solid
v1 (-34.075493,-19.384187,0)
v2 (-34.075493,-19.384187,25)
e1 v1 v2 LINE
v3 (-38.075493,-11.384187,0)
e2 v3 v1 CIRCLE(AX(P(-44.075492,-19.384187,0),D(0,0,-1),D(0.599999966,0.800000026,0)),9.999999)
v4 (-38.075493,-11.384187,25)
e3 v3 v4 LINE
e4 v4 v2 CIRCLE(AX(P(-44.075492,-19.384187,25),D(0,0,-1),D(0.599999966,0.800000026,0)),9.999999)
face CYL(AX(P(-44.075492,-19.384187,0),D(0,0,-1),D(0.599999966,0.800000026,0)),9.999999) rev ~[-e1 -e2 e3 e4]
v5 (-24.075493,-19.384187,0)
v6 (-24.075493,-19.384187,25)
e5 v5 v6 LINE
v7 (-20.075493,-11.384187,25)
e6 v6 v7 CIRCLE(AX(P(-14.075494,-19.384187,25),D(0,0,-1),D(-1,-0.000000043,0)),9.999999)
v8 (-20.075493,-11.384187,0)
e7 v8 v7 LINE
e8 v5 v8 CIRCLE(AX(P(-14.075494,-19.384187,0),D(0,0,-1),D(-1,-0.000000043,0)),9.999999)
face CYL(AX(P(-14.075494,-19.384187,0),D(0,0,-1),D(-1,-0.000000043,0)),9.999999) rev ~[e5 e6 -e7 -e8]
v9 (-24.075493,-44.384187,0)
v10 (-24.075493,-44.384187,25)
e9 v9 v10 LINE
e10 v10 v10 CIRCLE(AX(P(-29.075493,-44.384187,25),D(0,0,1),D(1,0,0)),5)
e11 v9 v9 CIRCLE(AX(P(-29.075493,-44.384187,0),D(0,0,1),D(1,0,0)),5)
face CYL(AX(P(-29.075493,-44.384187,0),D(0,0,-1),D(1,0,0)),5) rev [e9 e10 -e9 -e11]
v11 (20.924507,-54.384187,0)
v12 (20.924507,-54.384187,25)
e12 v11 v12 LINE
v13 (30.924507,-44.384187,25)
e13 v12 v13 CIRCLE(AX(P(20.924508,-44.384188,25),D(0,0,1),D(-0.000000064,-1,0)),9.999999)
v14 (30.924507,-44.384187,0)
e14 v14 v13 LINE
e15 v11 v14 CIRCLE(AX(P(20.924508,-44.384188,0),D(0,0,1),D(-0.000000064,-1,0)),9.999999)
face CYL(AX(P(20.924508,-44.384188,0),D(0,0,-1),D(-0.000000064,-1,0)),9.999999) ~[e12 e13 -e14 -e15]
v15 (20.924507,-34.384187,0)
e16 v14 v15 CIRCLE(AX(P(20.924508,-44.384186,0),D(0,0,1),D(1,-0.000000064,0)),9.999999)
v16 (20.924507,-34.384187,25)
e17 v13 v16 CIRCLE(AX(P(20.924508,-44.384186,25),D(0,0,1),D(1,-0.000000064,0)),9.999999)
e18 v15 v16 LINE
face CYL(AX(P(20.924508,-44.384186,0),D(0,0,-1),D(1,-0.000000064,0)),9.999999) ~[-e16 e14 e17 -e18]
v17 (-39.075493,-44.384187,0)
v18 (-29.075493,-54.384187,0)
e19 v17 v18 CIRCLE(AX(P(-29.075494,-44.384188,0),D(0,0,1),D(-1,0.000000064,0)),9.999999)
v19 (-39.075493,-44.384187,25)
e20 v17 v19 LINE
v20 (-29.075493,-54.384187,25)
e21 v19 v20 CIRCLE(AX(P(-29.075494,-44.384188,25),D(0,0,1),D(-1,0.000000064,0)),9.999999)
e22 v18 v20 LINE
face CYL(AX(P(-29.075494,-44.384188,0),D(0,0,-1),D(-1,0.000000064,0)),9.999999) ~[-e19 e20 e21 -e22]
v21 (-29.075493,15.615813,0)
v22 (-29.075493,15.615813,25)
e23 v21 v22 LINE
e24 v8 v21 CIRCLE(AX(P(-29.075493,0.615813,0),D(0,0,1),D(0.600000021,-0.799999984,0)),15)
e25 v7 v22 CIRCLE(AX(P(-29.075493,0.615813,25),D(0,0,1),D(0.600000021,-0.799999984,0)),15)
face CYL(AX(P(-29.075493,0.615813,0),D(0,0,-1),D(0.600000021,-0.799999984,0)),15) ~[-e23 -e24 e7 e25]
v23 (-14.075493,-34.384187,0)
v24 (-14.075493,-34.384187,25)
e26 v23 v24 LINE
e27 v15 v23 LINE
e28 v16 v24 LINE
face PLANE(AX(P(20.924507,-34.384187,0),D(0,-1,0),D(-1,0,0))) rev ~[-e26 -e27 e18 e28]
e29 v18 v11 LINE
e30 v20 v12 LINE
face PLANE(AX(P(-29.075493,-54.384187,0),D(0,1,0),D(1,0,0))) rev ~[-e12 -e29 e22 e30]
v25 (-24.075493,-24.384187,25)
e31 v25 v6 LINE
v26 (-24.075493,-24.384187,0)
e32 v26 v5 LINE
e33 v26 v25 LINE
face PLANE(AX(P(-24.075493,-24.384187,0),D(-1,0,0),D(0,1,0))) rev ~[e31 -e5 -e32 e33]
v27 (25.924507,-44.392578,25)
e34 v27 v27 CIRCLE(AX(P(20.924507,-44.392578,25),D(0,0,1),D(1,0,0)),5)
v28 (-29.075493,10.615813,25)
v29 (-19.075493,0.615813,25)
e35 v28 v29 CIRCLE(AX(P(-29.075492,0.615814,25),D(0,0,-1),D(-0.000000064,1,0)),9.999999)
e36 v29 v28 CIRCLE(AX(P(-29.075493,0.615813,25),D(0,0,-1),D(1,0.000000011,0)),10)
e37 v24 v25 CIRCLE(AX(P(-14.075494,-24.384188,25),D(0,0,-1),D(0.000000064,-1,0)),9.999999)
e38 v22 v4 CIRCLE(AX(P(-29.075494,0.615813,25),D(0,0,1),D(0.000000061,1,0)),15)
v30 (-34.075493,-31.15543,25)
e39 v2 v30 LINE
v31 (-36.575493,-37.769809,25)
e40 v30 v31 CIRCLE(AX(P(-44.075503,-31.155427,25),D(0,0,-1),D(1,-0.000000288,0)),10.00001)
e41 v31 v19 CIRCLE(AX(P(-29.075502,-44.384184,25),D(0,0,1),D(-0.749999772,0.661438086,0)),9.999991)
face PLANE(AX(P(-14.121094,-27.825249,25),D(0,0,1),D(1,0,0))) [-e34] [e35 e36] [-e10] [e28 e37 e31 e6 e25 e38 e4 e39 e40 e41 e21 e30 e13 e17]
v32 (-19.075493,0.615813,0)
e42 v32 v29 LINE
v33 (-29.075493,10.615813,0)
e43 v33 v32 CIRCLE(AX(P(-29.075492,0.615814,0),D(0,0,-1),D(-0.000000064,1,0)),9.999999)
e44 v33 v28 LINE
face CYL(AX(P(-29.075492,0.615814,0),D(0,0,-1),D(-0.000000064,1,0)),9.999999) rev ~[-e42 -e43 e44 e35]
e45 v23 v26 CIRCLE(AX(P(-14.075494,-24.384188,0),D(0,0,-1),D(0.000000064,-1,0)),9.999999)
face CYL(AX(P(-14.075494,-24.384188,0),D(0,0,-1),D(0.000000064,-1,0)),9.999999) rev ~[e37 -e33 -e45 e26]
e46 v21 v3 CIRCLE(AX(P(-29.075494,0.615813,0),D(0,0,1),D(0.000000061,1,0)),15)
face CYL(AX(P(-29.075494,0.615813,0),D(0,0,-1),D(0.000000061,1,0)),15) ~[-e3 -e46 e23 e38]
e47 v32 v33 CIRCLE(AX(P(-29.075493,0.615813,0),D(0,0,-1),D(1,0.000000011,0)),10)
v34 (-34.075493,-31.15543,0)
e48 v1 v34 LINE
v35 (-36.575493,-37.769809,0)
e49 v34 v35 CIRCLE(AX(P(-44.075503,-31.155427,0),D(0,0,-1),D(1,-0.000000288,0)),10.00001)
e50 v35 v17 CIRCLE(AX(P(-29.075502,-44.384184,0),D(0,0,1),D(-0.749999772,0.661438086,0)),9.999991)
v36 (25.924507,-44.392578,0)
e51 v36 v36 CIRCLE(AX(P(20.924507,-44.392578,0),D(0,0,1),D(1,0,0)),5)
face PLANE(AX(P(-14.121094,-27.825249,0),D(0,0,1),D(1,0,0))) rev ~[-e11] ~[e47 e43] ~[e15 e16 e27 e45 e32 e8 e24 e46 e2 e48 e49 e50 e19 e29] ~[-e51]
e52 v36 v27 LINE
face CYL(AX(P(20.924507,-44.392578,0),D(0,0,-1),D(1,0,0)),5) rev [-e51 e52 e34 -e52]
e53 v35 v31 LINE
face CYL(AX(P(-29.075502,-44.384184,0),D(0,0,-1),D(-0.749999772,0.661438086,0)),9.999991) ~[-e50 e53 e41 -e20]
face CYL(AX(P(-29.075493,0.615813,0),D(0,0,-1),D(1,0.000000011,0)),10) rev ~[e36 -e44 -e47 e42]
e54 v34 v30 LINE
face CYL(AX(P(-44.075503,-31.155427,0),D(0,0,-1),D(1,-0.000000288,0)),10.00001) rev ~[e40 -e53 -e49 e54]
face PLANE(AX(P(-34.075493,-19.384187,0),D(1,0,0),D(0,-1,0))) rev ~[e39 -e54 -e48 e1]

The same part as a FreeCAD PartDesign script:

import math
import FreeCAD as App
import Part
import Sketcher
from FreeCAD import Vector
Q = App.Units.Quantity

doc = App.newDocument("Part")
body = doc.addObject("PartDesign::Body", "Body")

# Sketch on XY plane
sketch1 = body.newObject("Sketcher::SketchObject", "Sketch")
sketch1.AttachmentSupport = (doc.getObject("XY_Plane"), [""])
sketch1.MapMode = "FlatFace"
sketch1.addGeometry(Part.ArcOfCircle(Part.Circle(Vector(-29, -44, 0), Vector(0, 0, 1), 10), math.radians(180), math.radians(270)), False)
sketch1.addGeometry(Part.LineSegment(Vector(-29, -54, 0), Vector(21, -54, 0)), False)
sketch1.addGeometry(Part.ArcOfCircle(Part.Circle(Vector(21, -44, 0), Vector(0, 0, 1), 10), math.radians(-90), math.radians(0)), False)
sketch1.addGeometry(Part.ArcOfCircle(Part.Circle(Vector(21, -44, 0), Vector(0, 0, 1), 10), math.radians(0), math.radians(90)), False)
sketch1.addGeometry(Part.LineSegment(Vector(21, -34, 0), Vector(-14, -34, 0)), False)
sketch1.addGeometry(Part.ArcOfCircle(Part.Circle(Vector(-14, -24, 0), Vector(0, 0, 1), 10), math.radians(180), math.radians(270)), False)
sketch1.addGeometry(Part.LineSegment(Vector(-24, -24, 0), Vector(-24, -19, 0)), False)
sketch1.addGeometry(Part.ArcOfCircle(Part.Circle(Vector(-14, -19, 0), Vector(0, 0, 1), 10), math.radians(127), math.radians(180)), False)
sketch1.addGeometry(Part.ArcOfCircle(Part.Circle(Vector(-29, 1, 0), Vector(0, 0, 1), 15), math.radians(-53), math.radians(90)), False)
sketch1.addGeometry(Part.ArcOfCircle(Part.Circle(Vector(-29, 1, 0), Vector(0, 0, 1), 15), math.radians(90), math.radians(233)), False)
sketch1.addGeometry(Part.ArcOfCircle(Part.Circle(Vector(-44, -19, 0), Vector(0, 0, 1), 10), math.radians(0), math.radians(53)), False)
sketch1.addGeometry(Part.LineSegment(Vector(-34, -19, 0), Vector(-34, -31, 0)), False)
sketch1.addGeometry(Part.ArcOfCircle(Part.Circle(Vector(-44, -31, 0), Vector(0, 0, 1), 10), math.radians(-41), math.radians(0)), False)
sketch1.addGeometry(Part.ArcOfCircle(Part.Circle(Vector(-29, -44, 0), Vector(0, 0, 1), 10), math.radians(139), math.radians(180)), False)
sketch1.addGeometry(Part.Circle(Vector(-29, -44, 0), Vector(0, 0, 1), 5), False)
sketch1.addGeometry(Part.Circle(Vector(21, -44, 0), Vector(0, 0, 1), 5), False)
sketch1.addGeometry(Part.ArcOfCircle(Part.Circle(Vector(-29, 1, 0), Vector(0, 0, 1), 10), math.radians(0), math.radians(90)), False)
sketch1.addGeometry(Part.ArcOfCircle(Part.Circle(Vector(-29, 1, 0), Vector(0, 0, 1), 10), math.radians(90), math.radians(360)), False)
sketch1.addConstraint(Sketcher.Constraint("Tangent", 0, 2, 1, 1))
sketch1.addConstraint(Sketcher.Constraint("Tangent", 1, 2, 2, 1))
sketch1.addConstraint(Sketcher.Constraint("Tangent", 2, 2, 3, 1))
sketch1.addConstraint(Sketcher.Constraint("Tangent", 3, 2, 4, 1))
sketch1.addConstraint(Sketcher.Constraint("Tangent", 4, 2, 5, 2))
sketch1.addConstraint(Sketcher.Constraint("Tangent", 5, 1, 6, 1))
sketch1.addConstraint(Sketcher.Constraint("Tangent", 6, 2, 7, 2))
sketch1.addConstraint(Sketcher.Constraint("Tangent", 7, 1, 8, 1))
sketch1.addConstraint(Sketcher.Constraint("Tangent", 8, 2, 9, 1))
sketch1.addConstraint(Sketcher.Constraint("Tangent", 9, 2, 10, 2))
sketch1.addConstraint(Sketcher.Constraint("Tangent", 10, 1, 11, 1))
sketch1.addConstraint(Sketcher.Constraint("Tangent", 11, 2, 12, 2))
sketch1.addConstraint(Sketcher.Constraint("Tangent", 12, 1, 13, 1))
sketch1.addConstraint(Sketcher.Constraint("Tangent", 13, 2, 0, 1))
sketch1.addConstraint(Sketcher.Constraint("Tangent", 16, 1, 17, 2))
sketch1.addConstraint(Sketcher.Constraint("Coincident", 17, 1, 16, 2))
sketch1.addConstraint(Sketcher.Constraint("Horizontal", 1))
sketch1.addConstraint(Sketcher.Constraint("Horizontal", 4))
sketch1.addConstraint(Sketcher.Constraint("Vertical", 6))
sketch1.addConstraint(Sketcher.Constraint("Vertical", 11))
sketch1.addConstraint(Sketcher.Constraint("Coincident", 14, 3, 0, 3))
sketch1.addConstraint(Sketcher.Constraint("Coincident", 16, 3, 8, 3))
sketch1.addConstraint(Sketcher.Constraint("Equal", 0, 2))
sketch1.addConstraint(Sketcher.Constraint("Equal", 2, 3))
sketch1.addConstraint(Sketcher.Constraint("Equal", 3, 5))
sketch1.addConstraint(Sketcher.Constraint("Equal", 5, 7))
sketch1.addConstraint(Sketcher.Constraint("Equal", 8, 9))
sketch1.addConstraint(Sketcher.Constraint("Equal", 7, 10))
sketch1.addConstraint(Sketcher.Constraint("Equal", 14, 15))
sketch1.addConstraint(Sketcher.Constraint("Equal", 10, 16))
sketch1.addConstraint(Sketcher.Constraint("Horizontal", 7, 3, 10, 3))
sketch1.addConstraint(Sketcher.Constraint("Horizontal", 14, 3, 2, 2))
sketch1.addConstraint(Sketcher.Constraint("Horizontal", 2, 2, 13, 2))
sketch1.addConstraint(Sketcher.Constraint("Horizontal", 17, 3, 16, 1))
sketch1.addConstraint(Sketcher.Constraint("Vertical", 0, 3, 8, 3))
sketch1.addConstraint(Sketcher.Constraint("Vertical", 3, 3, 15, 3))
sketch1.addConstraint(Sketcher.Constraint("Vertical", 0, 2, 8, 2))
sketch1.addConstraint(Sketcher.Constraint("Vertical", 8, 2, 17, 1))
sketch1.addConstraint(Sketcher.Constraint("Diameter", 14, Q("10 mm")))
sketch1.addConstraint(Sketcher.Constraint("Radius", 0, Q("9.999999 mm")))
sketch1.addConstraint(Sketcher.Constraint("Radius", 8, Q("15 mm")))
sketch1.addConstraint(Sketcher.Constraint("DistanceX", 1, 1, 1, 2, Q("50 mm")))
sketch1.addConstraint(Sketcher.Constraint("DistanceX", 4, 2, 4, 1, Q("35 mm")))
sketch1.addConstraint(Sketcher.Constraint("DistanceY", 6, 1, 6, 2, Q("5 mm")))
sketch1.addConstraint(Sketcher.Constraint("DistanceX", 12, 3, 13, 3, Q("15 mm")))
sketch1.addConstraint(Sketcher.Constraint("DistanceX", 12, 1, 11, 2, Q("2.5 mm")))
sketch1.addConstraint(Sketcher.Constraint("DistanceY", 11, 2, -1, 1, Q("31.15543 mm")))
sketch1.addConstraint(Sketcher.Constraint("DistanceY", 15, 3, 2, 3, Q("0.00839 mm")))
sketch1.addConstraint(Sketcher.Constraint("DistanceX", 0, 3, -1, 1, Q("29.075494 mm")))
pad1 = body.newObject("PartDesign::Pad", "Pad")
pad1.Profile = sketch1
pad1.Length = 25

doc.recompute()
